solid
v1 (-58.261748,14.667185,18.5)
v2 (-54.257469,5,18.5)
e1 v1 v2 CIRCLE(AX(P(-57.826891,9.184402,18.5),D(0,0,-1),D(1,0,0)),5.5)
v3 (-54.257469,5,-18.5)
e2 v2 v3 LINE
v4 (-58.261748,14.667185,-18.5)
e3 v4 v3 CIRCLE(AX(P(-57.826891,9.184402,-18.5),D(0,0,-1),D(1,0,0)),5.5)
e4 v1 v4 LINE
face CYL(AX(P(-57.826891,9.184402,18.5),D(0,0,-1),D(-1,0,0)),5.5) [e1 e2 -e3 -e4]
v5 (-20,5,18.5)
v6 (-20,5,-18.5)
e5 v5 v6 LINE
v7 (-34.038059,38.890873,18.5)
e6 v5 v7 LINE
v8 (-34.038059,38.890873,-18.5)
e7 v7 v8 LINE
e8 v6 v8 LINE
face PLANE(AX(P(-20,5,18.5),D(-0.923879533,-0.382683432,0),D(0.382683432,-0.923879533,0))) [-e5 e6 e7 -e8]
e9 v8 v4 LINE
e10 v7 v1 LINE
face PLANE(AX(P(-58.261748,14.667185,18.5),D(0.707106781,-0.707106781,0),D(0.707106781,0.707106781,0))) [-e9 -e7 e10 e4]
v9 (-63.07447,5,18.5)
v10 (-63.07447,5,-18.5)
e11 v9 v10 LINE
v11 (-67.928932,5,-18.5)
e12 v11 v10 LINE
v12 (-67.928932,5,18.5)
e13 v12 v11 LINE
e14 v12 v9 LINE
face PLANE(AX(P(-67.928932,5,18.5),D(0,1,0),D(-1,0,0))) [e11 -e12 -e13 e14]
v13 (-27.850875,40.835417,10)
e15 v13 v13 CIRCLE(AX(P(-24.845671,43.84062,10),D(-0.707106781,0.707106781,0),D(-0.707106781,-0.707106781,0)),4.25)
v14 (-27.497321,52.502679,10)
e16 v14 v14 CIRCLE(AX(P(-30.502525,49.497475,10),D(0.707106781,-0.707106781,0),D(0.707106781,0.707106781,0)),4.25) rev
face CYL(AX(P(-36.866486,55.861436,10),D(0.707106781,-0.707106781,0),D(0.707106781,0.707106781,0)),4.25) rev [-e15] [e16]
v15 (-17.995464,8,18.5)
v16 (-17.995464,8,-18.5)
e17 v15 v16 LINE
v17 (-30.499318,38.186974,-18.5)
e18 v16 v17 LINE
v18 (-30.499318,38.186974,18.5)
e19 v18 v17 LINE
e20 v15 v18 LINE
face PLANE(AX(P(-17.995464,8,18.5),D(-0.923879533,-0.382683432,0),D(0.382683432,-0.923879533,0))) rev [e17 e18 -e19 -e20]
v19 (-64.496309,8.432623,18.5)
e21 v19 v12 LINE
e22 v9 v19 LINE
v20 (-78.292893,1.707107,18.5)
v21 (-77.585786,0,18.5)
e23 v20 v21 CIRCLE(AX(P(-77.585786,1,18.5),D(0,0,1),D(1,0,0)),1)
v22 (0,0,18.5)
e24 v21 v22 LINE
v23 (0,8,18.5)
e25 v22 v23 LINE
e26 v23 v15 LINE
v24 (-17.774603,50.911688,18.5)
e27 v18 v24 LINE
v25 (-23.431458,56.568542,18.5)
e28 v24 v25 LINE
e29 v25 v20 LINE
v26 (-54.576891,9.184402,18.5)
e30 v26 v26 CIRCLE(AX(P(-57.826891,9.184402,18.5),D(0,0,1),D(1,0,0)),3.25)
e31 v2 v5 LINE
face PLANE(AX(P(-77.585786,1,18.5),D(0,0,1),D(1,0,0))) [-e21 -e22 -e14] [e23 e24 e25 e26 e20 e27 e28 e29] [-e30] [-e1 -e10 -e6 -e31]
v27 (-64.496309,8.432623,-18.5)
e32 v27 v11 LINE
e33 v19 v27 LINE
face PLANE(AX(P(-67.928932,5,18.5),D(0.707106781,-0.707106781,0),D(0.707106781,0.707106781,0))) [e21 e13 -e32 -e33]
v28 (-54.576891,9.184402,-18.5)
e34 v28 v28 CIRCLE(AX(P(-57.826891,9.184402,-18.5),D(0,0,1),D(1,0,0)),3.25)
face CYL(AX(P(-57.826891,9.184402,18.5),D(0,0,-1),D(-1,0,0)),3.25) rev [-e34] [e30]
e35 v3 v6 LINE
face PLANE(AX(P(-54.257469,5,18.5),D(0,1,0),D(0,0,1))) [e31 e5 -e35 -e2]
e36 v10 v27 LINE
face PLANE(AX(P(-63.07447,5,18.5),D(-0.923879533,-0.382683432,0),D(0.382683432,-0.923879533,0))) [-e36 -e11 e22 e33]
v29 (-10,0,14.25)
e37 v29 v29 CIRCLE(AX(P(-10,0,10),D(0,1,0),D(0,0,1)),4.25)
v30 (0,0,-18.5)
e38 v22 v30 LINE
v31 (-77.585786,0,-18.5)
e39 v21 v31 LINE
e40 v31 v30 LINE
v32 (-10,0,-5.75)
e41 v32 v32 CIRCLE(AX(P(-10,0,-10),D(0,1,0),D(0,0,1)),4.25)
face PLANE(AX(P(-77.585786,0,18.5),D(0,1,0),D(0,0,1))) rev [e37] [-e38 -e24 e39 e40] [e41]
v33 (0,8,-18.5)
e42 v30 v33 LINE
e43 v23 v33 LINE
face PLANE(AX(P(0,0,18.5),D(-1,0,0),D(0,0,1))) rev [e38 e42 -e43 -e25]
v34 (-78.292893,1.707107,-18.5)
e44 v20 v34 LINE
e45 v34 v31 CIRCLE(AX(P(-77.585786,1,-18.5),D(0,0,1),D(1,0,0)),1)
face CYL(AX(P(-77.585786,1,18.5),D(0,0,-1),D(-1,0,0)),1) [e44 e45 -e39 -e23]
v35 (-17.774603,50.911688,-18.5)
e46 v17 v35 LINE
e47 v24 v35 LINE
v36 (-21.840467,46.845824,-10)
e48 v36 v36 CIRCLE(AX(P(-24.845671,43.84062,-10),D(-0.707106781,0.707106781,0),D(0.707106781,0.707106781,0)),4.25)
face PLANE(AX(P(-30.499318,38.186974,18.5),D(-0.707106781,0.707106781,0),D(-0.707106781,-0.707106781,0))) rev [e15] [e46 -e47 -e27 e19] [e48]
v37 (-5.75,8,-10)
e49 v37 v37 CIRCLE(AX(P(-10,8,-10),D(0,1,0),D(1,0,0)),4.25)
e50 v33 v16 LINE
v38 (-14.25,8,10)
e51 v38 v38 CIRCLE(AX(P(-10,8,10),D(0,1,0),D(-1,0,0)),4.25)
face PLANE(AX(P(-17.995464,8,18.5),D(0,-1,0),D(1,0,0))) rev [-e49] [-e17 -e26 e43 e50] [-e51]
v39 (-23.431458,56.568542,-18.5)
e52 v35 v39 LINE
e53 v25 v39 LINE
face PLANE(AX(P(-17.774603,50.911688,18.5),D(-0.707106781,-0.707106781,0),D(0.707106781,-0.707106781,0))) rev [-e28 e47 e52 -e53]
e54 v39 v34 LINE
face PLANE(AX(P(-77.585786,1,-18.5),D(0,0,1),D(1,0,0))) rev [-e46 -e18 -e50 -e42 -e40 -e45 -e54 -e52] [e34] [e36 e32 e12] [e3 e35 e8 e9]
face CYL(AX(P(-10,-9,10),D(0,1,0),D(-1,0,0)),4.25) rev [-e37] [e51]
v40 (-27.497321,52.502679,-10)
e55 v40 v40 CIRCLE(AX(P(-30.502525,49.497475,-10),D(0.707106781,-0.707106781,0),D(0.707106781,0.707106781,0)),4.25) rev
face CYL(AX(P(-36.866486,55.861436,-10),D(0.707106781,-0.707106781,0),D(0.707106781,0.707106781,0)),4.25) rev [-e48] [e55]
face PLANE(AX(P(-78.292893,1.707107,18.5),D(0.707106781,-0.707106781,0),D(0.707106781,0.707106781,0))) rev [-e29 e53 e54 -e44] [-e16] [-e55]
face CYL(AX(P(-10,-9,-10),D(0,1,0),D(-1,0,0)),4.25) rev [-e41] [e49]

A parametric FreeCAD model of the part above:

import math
import FreeCAD as App
import Part
import Sketcher

V = App.Vector
Q = App.Units.Quantity


def add_polygon(sketch, points):
    """Adds a closed chain of lines whose ends are joined by coincident constraints."""
    first, n = sketch.GeometryCount, len(points)
    for a, b in zip(points, points[1:] + points[:1]):
        sketch.addGeometry(Part.LineSegment(App.Vector(*a, 0), App.Vector(*b, 0)), False)
    for i in range(n):
        sketch.addConstraint(Sketcher.Constraint("Coincident", first + i, 2, first + (i + 1) % n, 1))

doc = App.newDocument("Part")
body = doc.addObject("PartDesign::Body", "Body")

# Sketch on XY plane
sketch1 = body.newObject("Sketcher::SketchObject", "Sketch")
sketch1.AttachmentSupport = (doc.getObject("XY_Plane"), [""])
sketch1.MapMode = "FlatFace"
sketch1.addGeometry(Part.LineSegment(V(-77.6, 0, 0), V(0, 0, 0)), False)  # 0
sketch1.addGeometry(Part.LineSegment(V(0, 0, 0), V(0, 8, 0)), False)  # 1
sketch1.addGeometry(Part.LineSegment(V(0, 8, 0), V(-18, 8, 0)), False)  # 2
sketch1.addGeometry(Part.LineSegment(V(-18, 8, 0), V(-30.5, 38.2, 0)), False)  # 3
sketch1.addGeometry(Part.LineSegment(V(-30.5, 38.2, 0), V(-17.8, 50.9, 0)), False)  # 4
sketch1.addGeometry(Part.LineSegment(V(-17.8, 50.9, 0), V(-23.4, 56.6, 0)), False)  # 5
sketch1.addGeometry(Part.LineSegment(V(-23.4, 56.6, 0), V(-78.3, 1.7, 0)), False)  # 6
sketch1.addGeometry(Part.ArcOfCircle(Part.Circle(V(-77.6, 1, 0), V(0, 0, 1), 1), math.radians(135), math.radians(270)), False)  # 7
add_polygon(sketch1, [(-63.1, 5), (-67.9, 5), (-64.5, 8.4)])  # lines 8-10
sketch1.addGeometry(Part.Circle(V(-57.8, 9.2, 0), V(0, 0, 1), 3.2), False)  # 11
sketch1.addGeometry(Part.LineSegment(V(-20, 5, 0), V(-54.3, 5, 0)), False)  # 12
sketch1.addGeometry(Part.ArcOfCircle(Part.Circle(V(-57.8, 9.2, 0), V(0, 0, 1), 5.5), math.radians(-50), math.radians(95)), False)  # 13
sketch1.addGeometry(Part.LineSegment(V(-58.3, 14.7, 0), V(-34, 38.9, 0)), False)  # 14
sketch1.addGeometry(Part.LineSegment(V(-34, 38.9, 0), V(-20, 5, 0)), False)  # 15
sketch1.addConstraint(Sketcher.Constraint("Coincident", 0, 2, 1, 1))
sketch1.addConstraint(Sketcher.Constraint("Coincident", 1, 2, 2, 1))
sketch1.addConstraint(Sketcher.Constraint("Coincident", 2, 2, 3, 1))
sketch1.addConstraint(Sketcher.Constraint("Coincident", 3, 2, 4, 1))
sketch1.addConstraint(Sketcher.Constraint("Coincident", 4, 2, 5, 1))
sketch1.addConstraint(Sketcher.Constraint("Coincident", 5, 2, 6, 1))
sketch1.addConstraint(Sketcher.Constraint("Tangent", 6, 2, 7, 1))
sketch1.addConstraint(Sketcher.Constraint("Tangent", 7, 2, 0, 1))
sketch1.addConstraint(Sketcher.Constraint("Coincident", 12, 2, 13, 1))
sketch1.addConstraint(Sketcher.Constraint("Coincident", 13, 2, 14, 1))
sketch1.addConstraint(Sketcher.Constraint("Coincident", 14, 2, 15, 1))
sketch1.addConstraint(Sketcher.Constraint("Coincident", 15, 2, 12, 1))
sketch1.addConstraint(Sketcher.Constraint("Horizontal", 0))
sketch1.addConstraint(Sketcher.Constraint("Vertical", 1))
sketch1.addConstraint(Sketcher.Constraint("Horizontal", 2))
sketch1.addConstraint(Sketcher.Constraint("Horizontal", 8))
sketch1.addConstraint(Sketcher.Constraint("Horizontal", 12))
sketch1.addConstraint(Sketcher.Constraint("Coincident", 0, 2, -1, 1))
sketch1.addConstraint(Sketcher.Constraint("Coincident", 13, 3, 11, 3))
sketch1.addConstraint(Sketcher.Constraint("Perpendicular", 4, 5))
sketch1.addConstraint(Sketcher.Constraint("Perpendicular", 5, 6))
sketch1.addConstraint(Sketcher.Constraint("Parallel", 6, 9))
sketch1.addConstraint(Sketcher.Constraint("Parallel", 3, 10))
sketch1.addConstraint(Sketcher.Constraint("Parallel", 9, 14))
sketch1.addConstraint(Sketcher.Constraint("Parallel", 10, 15))
sketch1.addConstraint(Sketcher.Constraint("Horizontal", 10, 2, 12, 2))
sketch1.addConstraint(Sketcher.Constraint("Radius", 7, 1.0))
sketch1.addConstraint(Sketcher.Constraint("Diameter", 11, 6.5))
sketch1.addConstraint(Sketcher.Constraint("Radius", 13, 5.5))
sketch1.addConstraint(Sketcher.Constraint("DistanceY", 1, 1, 1, 2, 8.0))
sketch1.addConstraint(Sketcher.Constraint("Angle", 4, Q("45 deg")))
sketch1.addConstraint(Sketcher.Constraint("Distance", 5, 8.0))
sketch1.addConstraint(Sketcher.Constraint("DistanceY", -1, 1, 8, 2, 5.0))
sketch1.addConstraint(Sketcher.Constraint("DistanceX", 15, 2, -1, 1, 20.0))
sketch1.addConstraint(Sketcher.Constraint("Angle", 3, Q("112.5 deg")))
sketch1.addConstraint(Sketcher.Constraint("DistanceX", 6, 2, 11, 3, 20.466002))
sketch1.addConstraint(Sketcher.Constraint("DistanceX", 10, 2, 12, 2, 8.817002))
sketch1.addConstraint(Sketcher.Constraint("DistanceX", 8, 2, 8, 1, 4.854462))
sketch1.addConstraint(Sketcher.Constraint("DistanceX", 12, 2, 12, 1, 34.257469))
sketch1.addConstraint(Sketcher.Constraint("DistanceY", 3, 2, 14, 2, 0.703899))
sketch1.addConstraint(Sketcher.Constraint("DistanceX", 14, 2, 5, 2, 10.606602))
sketch1.addConstraint(Sketcher.Constraint("Distance", 14, 34.257469))
sketch1.addConstraint(Sketcher.Constraint("DistanceX", 0, 1, 0, 2, 77.585786))
pad1 = body.newObject("PartDesign::Pad", "Pad")
pad1.Profile = sketch1
pad1.Length = 37
pad1.Midplane = True

# Sketch on XZ plane
sketch2 = body.newObject("Sketcher::SketchObject", "Sketch001")
sketch2.AttachmentSupport = (doc.getObject("XZ_Plane"), [""])
sketch2.MapMode = "FlatFace"
sketch2.AttachmentOffset = App.Placement(V(0, 0, -8), App.Rotation())
sketch2.addGeometry(Part.Circle(V(-10, 10, 0), V(0, 0, 1), 4.2), False)
sketch2.addGeometry(Part.Circle(V(-10, -10, 0), V(0, 0, 1), 4.2), False)
sketch2.addConstraint(Sketcher.Constraint("Equal", 0, 1))
sketch2.addConstraint(Sketcher.Constraint("Symmetric", 0, 3, 1, 3, -1))
sketch2.addConstraint(Sketcher.Constraint("Diameter", 0, 8.5))
sketch2.addConstraint(Sketcher.Constraint("DistanceX", 0, 3, -1, 1, 10.0))
sketch2.addConstraint(Sketcher.Constraint("DistanceY", -1, 1, 0, 3, 10.0))
pocket1 = body.newObject("PartDesign::Pocket", "Pocket")
pocket1.Profile = sketch2
pocket1.Length = 17
pocket1.Reversed = True
doc.recompute()

datumplane = body.newObject("PartDesign::Plane", "DatumPlane")
datumplane.Placement = App.Placement(V(-11.715729, 28.284271, 0), App.Rotation(V(0.923879533, 0.382683432, 0), V(0, 0, -1), V(-0.382683432, 0.923879533, 0), "ZXY"))
mirrored = body.newObject("PartDesign::Mirrored", "Mirrored")
mirrored.Originals = [pocket1]
mirrored.MirrorPlane = (datumplane, [""])
body.Tip = mirrored

doc.recompute()
